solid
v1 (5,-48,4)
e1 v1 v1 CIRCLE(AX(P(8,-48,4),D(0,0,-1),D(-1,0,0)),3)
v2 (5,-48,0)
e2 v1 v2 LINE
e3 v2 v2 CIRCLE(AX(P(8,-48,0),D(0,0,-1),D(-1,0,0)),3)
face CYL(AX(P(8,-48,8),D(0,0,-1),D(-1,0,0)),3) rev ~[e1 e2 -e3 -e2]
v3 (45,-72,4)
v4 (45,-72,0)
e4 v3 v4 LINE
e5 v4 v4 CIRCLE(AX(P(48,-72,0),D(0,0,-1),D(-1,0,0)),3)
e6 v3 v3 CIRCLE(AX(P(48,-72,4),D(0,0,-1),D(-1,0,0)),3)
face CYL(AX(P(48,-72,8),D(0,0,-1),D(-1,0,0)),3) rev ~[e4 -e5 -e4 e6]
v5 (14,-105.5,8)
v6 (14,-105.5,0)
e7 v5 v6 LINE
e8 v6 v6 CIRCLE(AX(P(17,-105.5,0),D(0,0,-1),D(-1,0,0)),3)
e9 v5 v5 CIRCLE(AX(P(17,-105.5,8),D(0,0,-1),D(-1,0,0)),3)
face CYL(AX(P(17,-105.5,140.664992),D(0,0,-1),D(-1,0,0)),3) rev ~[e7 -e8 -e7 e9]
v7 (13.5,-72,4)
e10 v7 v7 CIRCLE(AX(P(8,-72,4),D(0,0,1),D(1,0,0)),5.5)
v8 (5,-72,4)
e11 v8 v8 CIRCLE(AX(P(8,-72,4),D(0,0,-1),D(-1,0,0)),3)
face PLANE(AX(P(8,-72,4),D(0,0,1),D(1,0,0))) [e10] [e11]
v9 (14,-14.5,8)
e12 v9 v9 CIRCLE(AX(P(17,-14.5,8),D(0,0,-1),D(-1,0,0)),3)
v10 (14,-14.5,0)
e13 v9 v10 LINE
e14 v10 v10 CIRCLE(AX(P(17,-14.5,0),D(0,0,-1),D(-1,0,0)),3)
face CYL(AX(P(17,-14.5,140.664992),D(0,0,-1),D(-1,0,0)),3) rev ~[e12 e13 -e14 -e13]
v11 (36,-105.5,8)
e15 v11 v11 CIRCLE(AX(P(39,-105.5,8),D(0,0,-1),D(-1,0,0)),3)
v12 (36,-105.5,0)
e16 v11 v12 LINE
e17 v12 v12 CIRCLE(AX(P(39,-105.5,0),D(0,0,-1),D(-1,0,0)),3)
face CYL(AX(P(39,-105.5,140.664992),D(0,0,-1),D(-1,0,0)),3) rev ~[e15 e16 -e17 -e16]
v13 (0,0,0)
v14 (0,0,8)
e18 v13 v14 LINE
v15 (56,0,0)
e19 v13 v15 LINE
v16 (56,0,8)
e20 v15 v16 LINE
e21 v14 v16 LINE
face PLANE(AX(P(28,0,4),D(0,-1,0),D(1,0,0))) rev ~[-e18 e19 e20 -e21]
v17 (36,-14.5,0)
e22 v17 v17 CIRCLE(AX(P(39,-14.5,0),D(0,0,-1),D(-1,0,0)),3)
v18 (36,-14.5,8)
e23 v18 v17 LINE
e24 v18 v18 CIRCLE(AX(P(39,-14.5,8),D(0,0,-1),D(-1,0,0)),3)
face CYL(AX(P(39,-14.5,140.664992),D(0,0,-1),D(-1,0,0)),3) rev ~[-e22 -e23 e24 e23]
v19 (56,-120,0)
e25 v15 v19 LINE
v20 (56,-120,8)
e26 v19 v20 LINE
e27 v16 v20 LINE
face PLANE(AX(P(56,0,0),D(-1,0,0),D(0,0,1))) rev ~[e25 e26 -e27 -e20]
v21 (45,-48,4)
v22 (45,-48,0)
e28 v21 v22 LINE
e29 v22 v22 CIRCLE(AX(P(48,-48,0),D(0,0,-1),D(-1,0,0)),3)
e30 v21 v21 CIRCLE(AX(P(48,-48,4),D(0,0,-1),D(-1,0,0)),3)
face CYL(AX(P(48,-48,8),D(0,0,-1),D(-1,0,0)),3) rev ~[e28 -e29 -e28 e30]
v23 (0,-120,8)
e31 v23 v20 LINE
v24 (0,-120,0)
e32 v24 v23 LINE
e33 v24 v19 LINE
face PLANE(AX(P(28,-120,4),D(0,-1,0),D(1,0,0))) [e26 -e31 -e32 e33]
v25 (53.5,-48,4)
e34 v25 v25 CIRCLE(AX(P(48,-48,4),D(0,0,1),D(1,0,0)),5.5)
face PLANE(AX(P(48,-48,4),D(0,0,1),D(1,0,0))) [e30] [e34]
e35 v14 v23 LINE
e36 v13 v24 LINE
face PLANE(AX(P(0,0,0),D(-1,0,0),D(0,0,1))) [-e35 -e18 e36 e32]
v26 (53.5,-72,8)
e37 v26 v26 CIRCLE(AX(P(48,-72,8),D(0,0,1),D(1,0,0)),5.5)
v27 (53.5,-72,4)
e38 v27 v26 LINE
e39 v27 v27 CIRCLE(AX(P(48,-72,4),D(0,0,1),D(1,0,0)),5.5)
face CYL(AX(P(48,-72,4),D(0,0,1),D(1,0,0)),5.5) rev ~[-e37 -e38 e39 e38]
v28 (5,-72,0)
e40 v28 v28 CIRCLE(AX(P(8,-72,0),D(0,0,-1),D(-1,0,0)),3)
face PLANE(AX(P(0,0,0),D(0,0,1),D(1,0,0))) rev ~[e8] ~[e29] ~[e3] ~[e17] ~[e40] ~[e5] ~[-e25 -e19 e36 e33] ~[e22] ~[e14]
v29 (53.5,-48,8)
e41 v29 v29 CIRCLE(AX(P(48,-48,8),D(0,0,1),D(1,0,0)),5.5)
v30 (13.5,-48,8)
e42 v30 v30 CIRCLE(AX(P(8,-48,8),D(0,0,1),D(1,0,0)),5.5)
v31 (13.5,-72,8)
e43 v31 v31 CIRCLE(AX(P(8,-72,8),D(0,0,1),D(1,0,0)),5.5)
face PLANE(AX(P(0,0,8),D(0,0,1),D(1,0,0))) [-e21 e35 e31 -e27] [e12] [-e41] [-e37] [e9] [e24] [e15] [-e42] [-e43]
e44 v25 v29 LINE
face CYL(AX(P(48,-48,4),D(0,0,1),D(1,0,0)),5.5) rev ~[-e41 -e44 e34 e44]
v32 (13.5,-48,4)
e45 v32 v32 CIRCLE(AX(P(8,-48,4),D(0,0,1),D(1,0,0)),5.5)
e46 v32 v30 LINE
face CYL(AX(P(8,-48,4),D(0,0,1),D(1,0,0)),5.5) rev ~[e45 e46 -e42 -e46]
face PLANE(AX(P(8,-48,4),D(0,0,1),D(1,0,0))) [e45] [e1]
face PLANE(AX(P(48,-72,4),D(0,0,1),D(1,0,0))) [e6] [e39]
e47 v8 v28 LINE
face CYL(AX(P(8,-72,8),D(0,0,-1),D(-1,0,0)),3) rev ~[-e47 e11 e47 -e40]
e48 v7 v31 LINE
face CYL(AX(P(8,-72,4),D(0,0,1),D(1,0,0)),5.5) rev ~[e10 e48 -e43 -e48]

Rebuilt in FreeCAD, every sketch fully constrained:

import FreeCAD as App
import Part
import Sketcher
Q = App.Units.Quantity

doc = App.newDocument("Part")
body = doc.addObject("PartDesign::Body", "Body")

sketch1 = doc.addObject("Sketcher::SketchObject", "Sketch")
body.addObject(sketch1)
sketch1.AttachmentSupport = (doc.XZ_Plane, [""])
sketch1.MapMode = "FlatFace"
sketch1.addGeometry(Part.LineSegment(App.Vector(0, 8, 0), App.Vector(0, 0, 0)), False)
sketch1.addGeometry(Part.LineSegment(App.Vector(0, 0, 0), App.Vector(56, 0, 0)), False)
sketch1.addGeometry(Part.LineSegment(App.Vector(56, 0, 0), App.Vector(56, 8, 0)), False)
sketch1.addGeometry(Part.LineSegment(App.Vector(56, 8, 0), App.Vector(0, 8, 0)), False)
sketch1.addConstraint(Sketcher.Constraint("Coincident", 0, 2, 1, 1))
sketch1.addConstraint(Sketcher.Constraint("Coincident", 1, 2, 2, 1))
sketch1.addConstraint(Sketcher.Constraint("Coincident", 2, 2, 3, 1))
sketch1.addConstraint(Sketcher.Constraint("Coincident", 3, 2, 0, 1))
sketch1.addConstraint(Sketcher.Constraint("Vertical", 0))
sketch1.addConstraint(Sketcher.Constraint("Horizontal", 1))
sketch1.addConstraint(Sketcher.Constraint("Vertical", 2))
sketch1.addConstraint(Sketcher.Constraint("Horizontal", 3))
sketch1.addConstraint(Sketcher.Constraint("Coincident", 0, 2, -1, 1))
sketch1.addConstraint(Sketcher.Constraint("DistanceX", 1, 1, 1, 2, Q("56 mm")))
sketch1.addConstraint(Sketcher.Constraint("DistanceY", 0, 2, 0, 1, Q("8 mm")))
pad1 = doc.addObject("PartDesign::Pad", "Pad")
body.addObject(pad1)
pad1.Profile = sketch1
pad1.Length = 120

sketch2 = doc.addObject("Sketcher::SketchObject", "Sketch001")
body.addObject(sketch2)
sketch2.AttachmentSupport = (doc.XY_Plane, [""])
sketch2.MapMode = "FlatFace"
sketch2.AttachmentOffset = App.Placement(App.Vector(0, 0, 8), App.Rotation())
sketch2.addGeometry(Part.Circle(App.Vector(17, -14.5, 0), App.Vector(0, 0, 1), 3), False)
sketch2.addGeometry(Part.Circle(App.Vector(39, -14.5, 0), App.Vector(0, 0, 1), 3), False)
sketch2.addGeometry(Part.Circle(App.Vector(17, -105.5, 0), App.Vector(0, 0, 1), 3), False)
sketch2.addGeometry(Part.Circle(App.Vector(39, -105.5, 0), App.Vector(0, 0, 1), 3), False)
sketch2.addConstraint(Sketcher.Constraint("Equal", 0, 1))
sketch2.addConstraint(Sketcher.Constraint("Equal", 1, 2))
sketch2.addConstraint(Sketcher.Constraint("Equal", 2, 3))
sketch2.addConstraint(Sketcher.Constraint("Horizontal", 0, 3, 1, 3))
sketch2.addConstraint(Sketcher.Constraint("Horizontal", 2, 3, 3, 3))
sketch2.addConstraint(Sketcher.Constraint("Vertical", 0, 3, 2, 3))
sketch2.addConstraint(Sketcher.Constraint("Vertical", 1, 3, 3, 3))
sketch2.addConstraint(Sketcher.Constraint("Diameter", 0, Q("6 mm")))
sketch2.addConstraint(Sketcher.Constraint("DistanceX", -1, 1, 0, 3, Q("17 mm")))
sketch2.addConstraint(Sketcher.Constraint("DistanceX", -1, 1, 1, 3, Q("39 mm")))
sketch2.addConstraint(Sketcher.Constraint("DistanceY", 2, 3, 0, 3, Q("91 mm")))
sketch2.addConstraint(Sketcher.Constraint("DistanceY", 0, 3, -1, 1, Q("14.5 mm")))
doc.recompute()
hole = doc.addObject("PartDesign::Hole", "Hole")
body.addObject(hole)
hole.Profile = sketch2
hole.ThreadType = "None"
hole.Diameter = 6
hole.DepthType = "ThroughAll"

sketch3 = doc.addObject("Sketcher::SketchObject", "Sketch002")
body.addObject(sketch3)
sketch3.AttachmentSupport = (doc.XY_Plane, [""])
sketch3.MapMode = "FlatFace"
sketch3.AttachmentOffset = App.Placement(App.Vector(0, 0, 8), App.Rotation())
sketch3.addGeometry(Part.Circle(App.Vector(8, -48, 0), App.Vector(0, 0, 1), 3), False)
sketch3.addGeometry(Part.Circle(App.Vector(8, -72, 0), App.Vector(0, 0, 1), 3), False)
sketch3.addGeometry(Part.Circle(App.Vector(48, -48, 0), App.Vector(0, 0, 1), 3), False)
sketch3.addGeometry(Part.Circle(App.Vector(48, -72, 0), App.Vector(0, 0, 1), 3), False)
sketch3.addConstraint(Sketcher.Constraint("Equal", 0, 1))
sketch3.addConstraint(Sketcher.Constraint("Equal", 1, 2))
sketch3.addConstraint(Sketcher.Constraint("Equal", 2, 3))
sketch3.addConstraint(Sketcher.Constraint("Horizontal", 0, 3, 2, 3))
sketch3.addConstraint(Sketcher.Constraint("Horizontal", 1, 3, 3, 3))
sketch3.addConstraint(Sketcher.Constraint("Vertical", 0, 3, 1, 3))
sketch3.addConstraint(Sketcher.Constraint("Vertical", 2, 3, 3, 3))
sketch3.addConstraint(Sketcher.Constraint("Diameter", 0, Q("6 mm")))
sketch3.addConstraint(Sketcher.Constraint("DistanceX", -1, 1, 0, 3, Q("8 mm")))
sketch3.addConstraint(Sketcher.Constraint("DistanceY", 0, 3, -1, 1, Q("48 mm")))
sketch3.addConstraint(Sketcher.Constraint("DistanceY", 1, 3, -1, 1, Q("72 mm")))
sketch3.addConstraint(Sketcher.Constraint("DistanceX", -1, 1, 2, 3, Q("48 mm")))
doc.recompute()
hole2 = doc.addObject("PartDesign::Hole", "Hole001")
body.addObject(hole2)
hole2.Profile = sketch3
hole2.ThreadType = "None"
hole2.Diameter = 6
hole2.DepthType = "ThroughAll"
hole2.HoleCutType = "Counterbore"
hole2.HoleCutDiameter = 11
hole2.HoleCutDepth = 4

doc.recompute()
